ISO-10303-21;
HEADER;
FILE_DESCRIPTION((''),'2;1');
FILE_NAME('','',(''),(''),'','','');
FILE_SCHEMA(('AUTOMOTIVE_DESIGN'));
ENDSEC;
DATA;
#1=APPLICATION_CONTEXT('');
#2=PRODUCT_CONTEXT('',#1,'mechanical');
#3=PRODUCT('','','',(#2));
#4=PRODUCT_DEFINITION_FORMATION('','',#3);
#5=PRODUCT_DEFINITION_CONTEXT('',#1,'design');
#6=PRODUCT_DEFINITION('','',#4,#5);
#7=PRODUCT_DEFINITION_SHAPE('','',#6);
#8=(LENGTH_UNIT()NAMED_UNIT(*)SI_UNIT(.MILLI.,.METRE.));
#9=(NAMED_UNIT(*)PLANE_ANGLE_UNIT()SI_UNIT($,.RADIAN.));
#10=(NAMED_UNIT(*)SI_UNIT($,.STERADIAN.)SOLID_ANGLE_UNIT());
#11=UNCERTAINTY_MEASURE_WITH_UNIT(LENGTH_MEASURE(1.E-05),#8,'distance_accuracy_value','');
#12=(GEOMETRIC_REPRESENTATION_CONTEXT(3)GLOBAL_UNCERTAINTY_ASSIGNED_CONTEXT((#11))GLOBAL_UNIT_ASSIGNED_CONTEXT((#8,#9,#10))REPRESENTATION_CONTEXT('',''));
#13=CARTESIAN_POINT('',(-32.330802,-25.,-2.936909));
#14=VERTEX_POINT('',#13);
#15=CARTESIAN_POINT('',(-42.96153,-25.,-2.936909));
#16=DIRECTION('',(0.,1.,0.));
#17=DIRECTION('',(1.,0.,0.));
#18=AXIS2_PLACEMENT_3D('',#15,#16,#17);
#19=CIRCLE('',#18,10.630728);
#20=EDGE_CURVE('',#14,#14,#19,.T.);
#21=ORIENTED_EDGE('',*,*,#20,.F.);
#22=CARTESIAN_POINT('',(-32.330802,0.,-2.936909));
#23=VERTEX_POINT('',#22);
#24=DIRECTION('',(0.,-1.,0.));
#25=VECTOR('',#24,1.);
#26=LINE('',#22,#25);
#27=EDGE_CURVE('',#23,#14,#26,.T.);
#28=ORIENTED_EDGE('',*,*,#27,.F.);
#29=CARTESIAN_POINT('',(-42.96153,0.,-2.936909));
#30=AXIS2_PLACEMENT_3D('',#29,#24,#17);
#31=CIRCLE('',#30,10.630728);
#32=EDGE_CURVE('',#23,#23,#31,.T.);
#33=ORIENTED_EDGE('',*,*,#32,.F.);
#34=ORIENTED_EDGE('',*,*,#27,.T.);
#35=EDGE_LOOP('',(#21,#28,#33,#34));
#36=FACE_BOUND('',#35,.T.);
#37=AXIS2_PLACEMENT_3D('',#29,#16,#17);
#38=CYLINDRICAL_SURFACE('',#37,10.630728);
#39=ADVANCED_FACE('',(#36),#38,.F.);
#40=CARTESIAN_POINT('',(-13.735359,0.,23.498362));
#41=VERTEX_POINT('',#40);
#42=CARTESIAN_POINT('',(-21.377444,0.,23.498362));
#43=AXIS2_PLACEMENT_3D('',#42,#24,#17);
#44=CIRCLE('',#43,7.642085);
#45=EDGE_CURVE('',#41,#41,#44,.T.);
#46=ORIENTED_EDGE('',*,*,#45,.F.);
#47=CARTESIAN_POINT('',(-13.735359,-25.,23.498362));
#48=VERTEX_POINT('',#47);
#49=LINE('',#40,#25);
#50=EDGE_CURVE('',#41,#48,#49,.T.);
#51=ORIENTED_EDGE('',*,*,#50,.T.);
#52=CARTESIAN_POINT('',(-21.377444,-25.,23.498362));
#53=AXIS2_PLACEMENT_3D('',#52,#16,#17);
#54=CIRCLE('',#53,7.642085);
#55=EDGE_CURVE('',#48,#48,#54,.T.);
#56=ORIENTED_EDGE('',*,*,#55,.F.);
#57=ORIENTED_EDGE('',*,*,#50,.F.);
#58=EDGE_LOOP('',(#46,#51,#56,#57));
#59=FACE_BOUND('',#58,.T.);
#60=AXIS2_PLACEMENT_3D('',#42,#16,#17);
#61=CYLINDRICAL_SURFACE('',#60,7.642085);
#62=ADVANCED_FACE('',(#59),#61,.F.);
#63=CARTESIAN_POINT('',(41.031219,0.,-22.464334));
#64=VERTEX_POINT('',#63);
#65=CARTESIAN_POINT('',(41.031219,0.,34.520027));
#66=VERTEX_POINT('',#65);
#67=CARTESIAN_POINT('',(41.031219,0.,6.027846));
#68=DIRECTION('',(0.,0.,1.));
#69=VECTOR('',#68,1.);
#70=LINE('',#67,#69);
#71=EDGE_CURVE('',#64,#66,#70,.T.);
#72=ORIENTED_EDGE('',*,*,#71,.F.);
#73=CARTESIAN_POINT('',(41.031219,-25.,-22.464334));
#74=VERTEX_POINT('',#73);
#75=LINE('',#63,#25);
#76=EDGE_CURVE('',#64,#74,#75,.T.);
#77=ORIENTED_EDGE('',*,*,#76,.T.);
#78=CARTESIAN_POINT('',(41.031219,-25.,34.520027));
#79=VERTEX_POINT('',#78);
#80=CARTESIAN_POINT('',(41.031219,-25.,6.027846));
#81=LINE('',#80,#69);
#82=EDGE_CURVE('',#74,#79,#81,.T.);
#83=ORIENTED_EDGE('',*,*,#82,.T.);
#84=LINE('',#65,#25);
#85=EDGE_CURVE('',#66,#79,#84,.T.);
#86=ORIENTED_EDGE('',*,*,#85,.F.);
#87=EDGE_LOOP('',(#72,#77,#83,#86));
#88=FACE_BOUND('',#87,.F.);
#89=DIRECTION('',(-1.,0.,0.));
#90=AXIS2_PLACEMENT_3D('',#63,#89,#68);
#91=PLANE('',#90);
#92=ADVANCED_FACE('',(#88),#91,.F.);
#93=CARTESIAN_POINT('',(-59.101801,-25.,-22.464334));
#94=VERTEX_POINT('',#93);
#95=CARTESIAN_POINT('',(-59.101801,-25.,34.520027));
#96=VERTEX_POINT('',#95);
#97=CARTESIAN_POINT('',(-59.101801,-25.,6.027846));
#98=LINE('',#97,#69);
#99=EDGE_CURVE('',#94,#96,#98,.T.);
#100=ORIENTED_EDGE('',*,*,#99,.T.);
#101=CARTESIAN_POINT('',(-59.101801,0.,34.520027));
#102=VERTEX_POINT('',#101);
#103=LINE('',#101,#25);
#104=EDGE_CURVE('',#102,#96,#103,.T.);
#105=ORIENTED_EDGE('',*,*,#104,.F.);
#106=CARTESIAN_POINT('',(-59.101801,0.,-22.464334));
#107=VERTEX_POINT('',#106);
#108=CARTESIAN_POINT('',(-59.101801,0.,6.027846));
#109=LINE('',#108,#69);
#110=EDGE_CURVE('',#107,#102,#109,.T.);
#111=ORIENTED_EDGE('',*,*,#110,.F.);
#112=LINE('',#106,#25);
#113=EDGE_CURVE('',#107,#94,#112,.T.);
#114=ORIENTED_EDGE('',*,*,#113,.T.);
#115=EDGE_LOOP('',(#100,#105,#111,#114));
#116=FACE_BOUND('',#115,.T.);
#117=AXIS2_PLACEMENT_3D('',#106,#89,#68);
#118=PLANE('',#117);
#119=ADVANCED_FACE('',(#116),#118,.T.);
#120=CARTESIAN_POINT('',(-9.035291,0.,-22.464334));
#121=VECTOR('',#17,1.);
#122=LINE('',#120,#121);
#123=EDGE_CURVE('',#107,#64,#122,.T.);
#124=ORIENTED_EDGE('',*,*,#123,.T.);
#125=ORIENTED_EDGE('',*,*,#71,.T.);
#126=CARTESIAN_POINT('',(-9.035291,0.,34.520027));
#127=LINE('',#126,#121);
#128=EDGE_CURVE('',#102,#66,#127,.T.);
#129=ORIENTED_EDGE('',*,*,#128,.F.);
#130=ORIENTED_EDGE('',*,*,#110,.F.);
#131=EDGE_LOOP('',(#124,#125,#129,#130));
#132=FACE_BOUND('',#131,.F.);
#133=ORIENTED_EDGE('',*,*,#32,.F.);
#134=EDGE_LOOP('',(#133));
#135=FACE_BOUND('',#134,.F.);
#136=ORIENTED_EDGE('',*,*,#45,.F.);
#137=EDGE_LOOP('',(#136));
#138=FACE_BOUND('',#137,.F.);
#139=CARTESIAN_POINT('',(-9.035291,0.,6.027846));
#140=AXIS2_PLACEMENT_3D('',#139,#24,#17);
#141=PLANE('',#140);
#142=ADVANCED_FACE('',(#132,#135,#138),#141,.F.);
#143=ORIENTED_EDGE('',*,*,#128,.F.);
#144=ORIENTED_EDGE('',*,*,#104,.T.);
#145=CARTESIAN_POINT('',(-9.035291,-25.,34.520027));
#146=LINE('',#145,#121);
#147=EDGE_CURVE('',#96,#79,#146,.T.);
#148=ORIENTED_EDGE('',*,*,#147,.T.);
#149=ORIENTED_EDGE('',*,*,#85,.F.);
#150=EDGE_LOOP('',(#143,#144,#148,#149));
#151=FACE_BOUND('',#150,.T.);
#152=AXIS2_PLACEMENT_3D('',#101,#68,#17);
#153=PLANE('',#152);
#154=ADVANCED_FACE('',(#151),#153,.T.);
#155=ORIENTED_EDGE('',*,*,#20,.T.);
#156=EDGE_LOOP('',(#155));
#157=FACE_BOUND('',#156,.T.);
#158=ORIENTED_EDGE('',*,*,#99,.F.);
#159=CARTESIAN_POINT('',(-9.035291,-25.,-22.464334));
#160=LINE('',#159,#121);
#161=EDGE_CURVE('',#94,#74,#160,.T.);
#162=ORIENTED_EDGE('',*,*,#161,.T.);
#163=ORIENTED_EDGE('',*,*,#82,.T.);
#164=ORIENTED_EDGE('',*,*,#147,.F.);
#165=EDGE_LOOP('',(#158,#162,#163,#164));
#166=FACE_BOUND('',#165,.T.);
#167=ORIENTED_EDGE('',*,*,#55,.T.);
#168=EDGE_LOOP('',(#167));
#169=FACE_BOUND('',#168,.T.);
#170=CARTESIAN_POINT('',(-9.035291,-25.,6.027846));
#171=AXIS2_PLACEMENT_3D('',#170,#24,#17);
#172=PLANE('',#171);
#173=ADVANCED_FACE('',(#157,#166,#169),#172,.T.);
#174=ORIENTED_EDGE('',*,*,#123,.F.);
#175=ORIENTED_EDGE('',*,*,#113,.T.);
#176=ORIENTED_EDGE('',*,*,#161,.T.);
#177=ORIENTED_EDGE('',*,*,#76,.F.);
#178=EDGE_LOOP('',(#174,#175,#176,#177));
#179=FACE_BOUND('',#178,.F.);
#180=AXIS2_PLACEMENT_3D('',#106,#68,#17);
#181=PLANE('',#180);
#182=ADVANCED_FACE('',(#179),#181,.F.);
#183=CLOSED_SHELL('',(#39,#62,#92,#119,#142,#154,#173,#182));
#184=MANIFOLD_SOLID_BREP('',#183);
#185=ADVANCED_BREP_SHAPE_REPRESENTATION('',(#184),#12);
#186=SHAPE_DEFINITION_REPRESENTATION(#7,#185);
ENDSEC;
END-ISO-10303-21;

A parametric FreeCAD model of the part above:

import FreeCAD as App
import Part
import Sketcher

doc = App.newDocument("Part")
body = doc.addObject("PartDesign::Body", "Body")

# Sketch on XZ plane
sketch1 = body.newObject("Sketcher::SketchObject", "Sketch")
sketch1.AttachmentSupport = (doc.getObject("XZ_Plane"), [""])
sketch1.MapMode = "FlatFace"
sketch1.addGeometry([
    Part.LineSegment(App.Vector(-59, 35, 0), App.Vector(-59, -22, 0)),
    Part.LineSegment(App.Vector(-59, -22, 0), App.Vector(41, -22, 0)),
    Part.LineSegment(App.Vector(41, -22, 0), App.Vector(41, 35, 0)),
    Part.LineSegment(App.Vector(41, 35, 0), App.Vector(-59, 35, 0)),
], False)
sketch1.addConstraint([
    Sketcher.Constraint("Coincident", 0, 2, 1, 1),
    Sketcher.Constraint("Coincident", 1, 2, 2, 1),
    Sketcher.Constraint("Coincident", 2, 2, 3, 1),
    Sketcher.Constraint("Coincident", 3, 2, 0, 1),
    Sketcher.Constraint("Vertical", 0),
    Sketcher.Constraint("Horizontal", 1),
    Sketcher.Constraint("Vertical", 2),
    Sketcher.Constraint("Horizontal", 3),
    Sketcher.Constraint("DistanceX", 1, 1, 1, 2, 100.13302),
    Sketcher.Constraint("DistanceY", 0, 2, 0, 1, 56.984361),
    Sketcher.Constraint("DistanceX", 0, 2, -1, 1, 59.101801),
    Sketcher.Constraint("DistanceY", 0, 2, -1, 1, 22.464334),
])
pad1 = body.newObject("PartDesign::Pad", "Pad")
pad1.Profile = sketch1
pad1.Length = 25

# Sketch on XZ plane
sketch2 = body.newObject("Sketcher::SketchObject", "Sketch001")
sketch2.AttachmentSupport = (doc.getObject("XZ_Plane"), [""])
sketch2.MapMode = "FlatFace"
sketch2.addGeometry(Part.Circle(App.Vector(-21, 23, 0), App.Vector(0, 0, 1), 8), False)
sketch2.addConstraint([
    Sketcher.Constraint("Diameter", 0, 15.28417),
    Sketcher.Constraint("DistanceY", -1, 1, 0, 3, 23.498362),
    Sketcher.Constraint("DistanceX", 0, 3, -1, 1, 21.377444),
])
pocket1 = body.newObject("PartDesign::Pocket", "Pocket")
pocket1.Profile = sketch2
pocket1.Length = 120.5
pocket1.Reversed = True

# Sketch on XZ plane
sketch3 = body.newObject("Sketcher::SketchObject", "Sketch002")
sketch3.AttachmentSupport = (doc.getObject("XZ_Plane"), [""])
sketch3.MapMode = "FlatFace"
sketch3.addGeometry(Part.Circle(App.Vector(-43, -3, 0), App.Vector(0, 0, 1), 11), False)
sketch3.addConstraint([
    Sketcher.Constraint("Diameter", 0, 21.261456),
    Sketcher.Constraint("DistanceX", 0, 3, -1, 1, 42.96153),
    Sketcher.Constraint("DistanceY", 0, 3, -1, 1, 2.936909),
])
pocket2 = body.newObject("PartDesign::Pocket", "Pocket001")
pocket2.Profile = sketch3
pocket2.Length = 179
pocket2.Reversed = True

doc.recompute()
